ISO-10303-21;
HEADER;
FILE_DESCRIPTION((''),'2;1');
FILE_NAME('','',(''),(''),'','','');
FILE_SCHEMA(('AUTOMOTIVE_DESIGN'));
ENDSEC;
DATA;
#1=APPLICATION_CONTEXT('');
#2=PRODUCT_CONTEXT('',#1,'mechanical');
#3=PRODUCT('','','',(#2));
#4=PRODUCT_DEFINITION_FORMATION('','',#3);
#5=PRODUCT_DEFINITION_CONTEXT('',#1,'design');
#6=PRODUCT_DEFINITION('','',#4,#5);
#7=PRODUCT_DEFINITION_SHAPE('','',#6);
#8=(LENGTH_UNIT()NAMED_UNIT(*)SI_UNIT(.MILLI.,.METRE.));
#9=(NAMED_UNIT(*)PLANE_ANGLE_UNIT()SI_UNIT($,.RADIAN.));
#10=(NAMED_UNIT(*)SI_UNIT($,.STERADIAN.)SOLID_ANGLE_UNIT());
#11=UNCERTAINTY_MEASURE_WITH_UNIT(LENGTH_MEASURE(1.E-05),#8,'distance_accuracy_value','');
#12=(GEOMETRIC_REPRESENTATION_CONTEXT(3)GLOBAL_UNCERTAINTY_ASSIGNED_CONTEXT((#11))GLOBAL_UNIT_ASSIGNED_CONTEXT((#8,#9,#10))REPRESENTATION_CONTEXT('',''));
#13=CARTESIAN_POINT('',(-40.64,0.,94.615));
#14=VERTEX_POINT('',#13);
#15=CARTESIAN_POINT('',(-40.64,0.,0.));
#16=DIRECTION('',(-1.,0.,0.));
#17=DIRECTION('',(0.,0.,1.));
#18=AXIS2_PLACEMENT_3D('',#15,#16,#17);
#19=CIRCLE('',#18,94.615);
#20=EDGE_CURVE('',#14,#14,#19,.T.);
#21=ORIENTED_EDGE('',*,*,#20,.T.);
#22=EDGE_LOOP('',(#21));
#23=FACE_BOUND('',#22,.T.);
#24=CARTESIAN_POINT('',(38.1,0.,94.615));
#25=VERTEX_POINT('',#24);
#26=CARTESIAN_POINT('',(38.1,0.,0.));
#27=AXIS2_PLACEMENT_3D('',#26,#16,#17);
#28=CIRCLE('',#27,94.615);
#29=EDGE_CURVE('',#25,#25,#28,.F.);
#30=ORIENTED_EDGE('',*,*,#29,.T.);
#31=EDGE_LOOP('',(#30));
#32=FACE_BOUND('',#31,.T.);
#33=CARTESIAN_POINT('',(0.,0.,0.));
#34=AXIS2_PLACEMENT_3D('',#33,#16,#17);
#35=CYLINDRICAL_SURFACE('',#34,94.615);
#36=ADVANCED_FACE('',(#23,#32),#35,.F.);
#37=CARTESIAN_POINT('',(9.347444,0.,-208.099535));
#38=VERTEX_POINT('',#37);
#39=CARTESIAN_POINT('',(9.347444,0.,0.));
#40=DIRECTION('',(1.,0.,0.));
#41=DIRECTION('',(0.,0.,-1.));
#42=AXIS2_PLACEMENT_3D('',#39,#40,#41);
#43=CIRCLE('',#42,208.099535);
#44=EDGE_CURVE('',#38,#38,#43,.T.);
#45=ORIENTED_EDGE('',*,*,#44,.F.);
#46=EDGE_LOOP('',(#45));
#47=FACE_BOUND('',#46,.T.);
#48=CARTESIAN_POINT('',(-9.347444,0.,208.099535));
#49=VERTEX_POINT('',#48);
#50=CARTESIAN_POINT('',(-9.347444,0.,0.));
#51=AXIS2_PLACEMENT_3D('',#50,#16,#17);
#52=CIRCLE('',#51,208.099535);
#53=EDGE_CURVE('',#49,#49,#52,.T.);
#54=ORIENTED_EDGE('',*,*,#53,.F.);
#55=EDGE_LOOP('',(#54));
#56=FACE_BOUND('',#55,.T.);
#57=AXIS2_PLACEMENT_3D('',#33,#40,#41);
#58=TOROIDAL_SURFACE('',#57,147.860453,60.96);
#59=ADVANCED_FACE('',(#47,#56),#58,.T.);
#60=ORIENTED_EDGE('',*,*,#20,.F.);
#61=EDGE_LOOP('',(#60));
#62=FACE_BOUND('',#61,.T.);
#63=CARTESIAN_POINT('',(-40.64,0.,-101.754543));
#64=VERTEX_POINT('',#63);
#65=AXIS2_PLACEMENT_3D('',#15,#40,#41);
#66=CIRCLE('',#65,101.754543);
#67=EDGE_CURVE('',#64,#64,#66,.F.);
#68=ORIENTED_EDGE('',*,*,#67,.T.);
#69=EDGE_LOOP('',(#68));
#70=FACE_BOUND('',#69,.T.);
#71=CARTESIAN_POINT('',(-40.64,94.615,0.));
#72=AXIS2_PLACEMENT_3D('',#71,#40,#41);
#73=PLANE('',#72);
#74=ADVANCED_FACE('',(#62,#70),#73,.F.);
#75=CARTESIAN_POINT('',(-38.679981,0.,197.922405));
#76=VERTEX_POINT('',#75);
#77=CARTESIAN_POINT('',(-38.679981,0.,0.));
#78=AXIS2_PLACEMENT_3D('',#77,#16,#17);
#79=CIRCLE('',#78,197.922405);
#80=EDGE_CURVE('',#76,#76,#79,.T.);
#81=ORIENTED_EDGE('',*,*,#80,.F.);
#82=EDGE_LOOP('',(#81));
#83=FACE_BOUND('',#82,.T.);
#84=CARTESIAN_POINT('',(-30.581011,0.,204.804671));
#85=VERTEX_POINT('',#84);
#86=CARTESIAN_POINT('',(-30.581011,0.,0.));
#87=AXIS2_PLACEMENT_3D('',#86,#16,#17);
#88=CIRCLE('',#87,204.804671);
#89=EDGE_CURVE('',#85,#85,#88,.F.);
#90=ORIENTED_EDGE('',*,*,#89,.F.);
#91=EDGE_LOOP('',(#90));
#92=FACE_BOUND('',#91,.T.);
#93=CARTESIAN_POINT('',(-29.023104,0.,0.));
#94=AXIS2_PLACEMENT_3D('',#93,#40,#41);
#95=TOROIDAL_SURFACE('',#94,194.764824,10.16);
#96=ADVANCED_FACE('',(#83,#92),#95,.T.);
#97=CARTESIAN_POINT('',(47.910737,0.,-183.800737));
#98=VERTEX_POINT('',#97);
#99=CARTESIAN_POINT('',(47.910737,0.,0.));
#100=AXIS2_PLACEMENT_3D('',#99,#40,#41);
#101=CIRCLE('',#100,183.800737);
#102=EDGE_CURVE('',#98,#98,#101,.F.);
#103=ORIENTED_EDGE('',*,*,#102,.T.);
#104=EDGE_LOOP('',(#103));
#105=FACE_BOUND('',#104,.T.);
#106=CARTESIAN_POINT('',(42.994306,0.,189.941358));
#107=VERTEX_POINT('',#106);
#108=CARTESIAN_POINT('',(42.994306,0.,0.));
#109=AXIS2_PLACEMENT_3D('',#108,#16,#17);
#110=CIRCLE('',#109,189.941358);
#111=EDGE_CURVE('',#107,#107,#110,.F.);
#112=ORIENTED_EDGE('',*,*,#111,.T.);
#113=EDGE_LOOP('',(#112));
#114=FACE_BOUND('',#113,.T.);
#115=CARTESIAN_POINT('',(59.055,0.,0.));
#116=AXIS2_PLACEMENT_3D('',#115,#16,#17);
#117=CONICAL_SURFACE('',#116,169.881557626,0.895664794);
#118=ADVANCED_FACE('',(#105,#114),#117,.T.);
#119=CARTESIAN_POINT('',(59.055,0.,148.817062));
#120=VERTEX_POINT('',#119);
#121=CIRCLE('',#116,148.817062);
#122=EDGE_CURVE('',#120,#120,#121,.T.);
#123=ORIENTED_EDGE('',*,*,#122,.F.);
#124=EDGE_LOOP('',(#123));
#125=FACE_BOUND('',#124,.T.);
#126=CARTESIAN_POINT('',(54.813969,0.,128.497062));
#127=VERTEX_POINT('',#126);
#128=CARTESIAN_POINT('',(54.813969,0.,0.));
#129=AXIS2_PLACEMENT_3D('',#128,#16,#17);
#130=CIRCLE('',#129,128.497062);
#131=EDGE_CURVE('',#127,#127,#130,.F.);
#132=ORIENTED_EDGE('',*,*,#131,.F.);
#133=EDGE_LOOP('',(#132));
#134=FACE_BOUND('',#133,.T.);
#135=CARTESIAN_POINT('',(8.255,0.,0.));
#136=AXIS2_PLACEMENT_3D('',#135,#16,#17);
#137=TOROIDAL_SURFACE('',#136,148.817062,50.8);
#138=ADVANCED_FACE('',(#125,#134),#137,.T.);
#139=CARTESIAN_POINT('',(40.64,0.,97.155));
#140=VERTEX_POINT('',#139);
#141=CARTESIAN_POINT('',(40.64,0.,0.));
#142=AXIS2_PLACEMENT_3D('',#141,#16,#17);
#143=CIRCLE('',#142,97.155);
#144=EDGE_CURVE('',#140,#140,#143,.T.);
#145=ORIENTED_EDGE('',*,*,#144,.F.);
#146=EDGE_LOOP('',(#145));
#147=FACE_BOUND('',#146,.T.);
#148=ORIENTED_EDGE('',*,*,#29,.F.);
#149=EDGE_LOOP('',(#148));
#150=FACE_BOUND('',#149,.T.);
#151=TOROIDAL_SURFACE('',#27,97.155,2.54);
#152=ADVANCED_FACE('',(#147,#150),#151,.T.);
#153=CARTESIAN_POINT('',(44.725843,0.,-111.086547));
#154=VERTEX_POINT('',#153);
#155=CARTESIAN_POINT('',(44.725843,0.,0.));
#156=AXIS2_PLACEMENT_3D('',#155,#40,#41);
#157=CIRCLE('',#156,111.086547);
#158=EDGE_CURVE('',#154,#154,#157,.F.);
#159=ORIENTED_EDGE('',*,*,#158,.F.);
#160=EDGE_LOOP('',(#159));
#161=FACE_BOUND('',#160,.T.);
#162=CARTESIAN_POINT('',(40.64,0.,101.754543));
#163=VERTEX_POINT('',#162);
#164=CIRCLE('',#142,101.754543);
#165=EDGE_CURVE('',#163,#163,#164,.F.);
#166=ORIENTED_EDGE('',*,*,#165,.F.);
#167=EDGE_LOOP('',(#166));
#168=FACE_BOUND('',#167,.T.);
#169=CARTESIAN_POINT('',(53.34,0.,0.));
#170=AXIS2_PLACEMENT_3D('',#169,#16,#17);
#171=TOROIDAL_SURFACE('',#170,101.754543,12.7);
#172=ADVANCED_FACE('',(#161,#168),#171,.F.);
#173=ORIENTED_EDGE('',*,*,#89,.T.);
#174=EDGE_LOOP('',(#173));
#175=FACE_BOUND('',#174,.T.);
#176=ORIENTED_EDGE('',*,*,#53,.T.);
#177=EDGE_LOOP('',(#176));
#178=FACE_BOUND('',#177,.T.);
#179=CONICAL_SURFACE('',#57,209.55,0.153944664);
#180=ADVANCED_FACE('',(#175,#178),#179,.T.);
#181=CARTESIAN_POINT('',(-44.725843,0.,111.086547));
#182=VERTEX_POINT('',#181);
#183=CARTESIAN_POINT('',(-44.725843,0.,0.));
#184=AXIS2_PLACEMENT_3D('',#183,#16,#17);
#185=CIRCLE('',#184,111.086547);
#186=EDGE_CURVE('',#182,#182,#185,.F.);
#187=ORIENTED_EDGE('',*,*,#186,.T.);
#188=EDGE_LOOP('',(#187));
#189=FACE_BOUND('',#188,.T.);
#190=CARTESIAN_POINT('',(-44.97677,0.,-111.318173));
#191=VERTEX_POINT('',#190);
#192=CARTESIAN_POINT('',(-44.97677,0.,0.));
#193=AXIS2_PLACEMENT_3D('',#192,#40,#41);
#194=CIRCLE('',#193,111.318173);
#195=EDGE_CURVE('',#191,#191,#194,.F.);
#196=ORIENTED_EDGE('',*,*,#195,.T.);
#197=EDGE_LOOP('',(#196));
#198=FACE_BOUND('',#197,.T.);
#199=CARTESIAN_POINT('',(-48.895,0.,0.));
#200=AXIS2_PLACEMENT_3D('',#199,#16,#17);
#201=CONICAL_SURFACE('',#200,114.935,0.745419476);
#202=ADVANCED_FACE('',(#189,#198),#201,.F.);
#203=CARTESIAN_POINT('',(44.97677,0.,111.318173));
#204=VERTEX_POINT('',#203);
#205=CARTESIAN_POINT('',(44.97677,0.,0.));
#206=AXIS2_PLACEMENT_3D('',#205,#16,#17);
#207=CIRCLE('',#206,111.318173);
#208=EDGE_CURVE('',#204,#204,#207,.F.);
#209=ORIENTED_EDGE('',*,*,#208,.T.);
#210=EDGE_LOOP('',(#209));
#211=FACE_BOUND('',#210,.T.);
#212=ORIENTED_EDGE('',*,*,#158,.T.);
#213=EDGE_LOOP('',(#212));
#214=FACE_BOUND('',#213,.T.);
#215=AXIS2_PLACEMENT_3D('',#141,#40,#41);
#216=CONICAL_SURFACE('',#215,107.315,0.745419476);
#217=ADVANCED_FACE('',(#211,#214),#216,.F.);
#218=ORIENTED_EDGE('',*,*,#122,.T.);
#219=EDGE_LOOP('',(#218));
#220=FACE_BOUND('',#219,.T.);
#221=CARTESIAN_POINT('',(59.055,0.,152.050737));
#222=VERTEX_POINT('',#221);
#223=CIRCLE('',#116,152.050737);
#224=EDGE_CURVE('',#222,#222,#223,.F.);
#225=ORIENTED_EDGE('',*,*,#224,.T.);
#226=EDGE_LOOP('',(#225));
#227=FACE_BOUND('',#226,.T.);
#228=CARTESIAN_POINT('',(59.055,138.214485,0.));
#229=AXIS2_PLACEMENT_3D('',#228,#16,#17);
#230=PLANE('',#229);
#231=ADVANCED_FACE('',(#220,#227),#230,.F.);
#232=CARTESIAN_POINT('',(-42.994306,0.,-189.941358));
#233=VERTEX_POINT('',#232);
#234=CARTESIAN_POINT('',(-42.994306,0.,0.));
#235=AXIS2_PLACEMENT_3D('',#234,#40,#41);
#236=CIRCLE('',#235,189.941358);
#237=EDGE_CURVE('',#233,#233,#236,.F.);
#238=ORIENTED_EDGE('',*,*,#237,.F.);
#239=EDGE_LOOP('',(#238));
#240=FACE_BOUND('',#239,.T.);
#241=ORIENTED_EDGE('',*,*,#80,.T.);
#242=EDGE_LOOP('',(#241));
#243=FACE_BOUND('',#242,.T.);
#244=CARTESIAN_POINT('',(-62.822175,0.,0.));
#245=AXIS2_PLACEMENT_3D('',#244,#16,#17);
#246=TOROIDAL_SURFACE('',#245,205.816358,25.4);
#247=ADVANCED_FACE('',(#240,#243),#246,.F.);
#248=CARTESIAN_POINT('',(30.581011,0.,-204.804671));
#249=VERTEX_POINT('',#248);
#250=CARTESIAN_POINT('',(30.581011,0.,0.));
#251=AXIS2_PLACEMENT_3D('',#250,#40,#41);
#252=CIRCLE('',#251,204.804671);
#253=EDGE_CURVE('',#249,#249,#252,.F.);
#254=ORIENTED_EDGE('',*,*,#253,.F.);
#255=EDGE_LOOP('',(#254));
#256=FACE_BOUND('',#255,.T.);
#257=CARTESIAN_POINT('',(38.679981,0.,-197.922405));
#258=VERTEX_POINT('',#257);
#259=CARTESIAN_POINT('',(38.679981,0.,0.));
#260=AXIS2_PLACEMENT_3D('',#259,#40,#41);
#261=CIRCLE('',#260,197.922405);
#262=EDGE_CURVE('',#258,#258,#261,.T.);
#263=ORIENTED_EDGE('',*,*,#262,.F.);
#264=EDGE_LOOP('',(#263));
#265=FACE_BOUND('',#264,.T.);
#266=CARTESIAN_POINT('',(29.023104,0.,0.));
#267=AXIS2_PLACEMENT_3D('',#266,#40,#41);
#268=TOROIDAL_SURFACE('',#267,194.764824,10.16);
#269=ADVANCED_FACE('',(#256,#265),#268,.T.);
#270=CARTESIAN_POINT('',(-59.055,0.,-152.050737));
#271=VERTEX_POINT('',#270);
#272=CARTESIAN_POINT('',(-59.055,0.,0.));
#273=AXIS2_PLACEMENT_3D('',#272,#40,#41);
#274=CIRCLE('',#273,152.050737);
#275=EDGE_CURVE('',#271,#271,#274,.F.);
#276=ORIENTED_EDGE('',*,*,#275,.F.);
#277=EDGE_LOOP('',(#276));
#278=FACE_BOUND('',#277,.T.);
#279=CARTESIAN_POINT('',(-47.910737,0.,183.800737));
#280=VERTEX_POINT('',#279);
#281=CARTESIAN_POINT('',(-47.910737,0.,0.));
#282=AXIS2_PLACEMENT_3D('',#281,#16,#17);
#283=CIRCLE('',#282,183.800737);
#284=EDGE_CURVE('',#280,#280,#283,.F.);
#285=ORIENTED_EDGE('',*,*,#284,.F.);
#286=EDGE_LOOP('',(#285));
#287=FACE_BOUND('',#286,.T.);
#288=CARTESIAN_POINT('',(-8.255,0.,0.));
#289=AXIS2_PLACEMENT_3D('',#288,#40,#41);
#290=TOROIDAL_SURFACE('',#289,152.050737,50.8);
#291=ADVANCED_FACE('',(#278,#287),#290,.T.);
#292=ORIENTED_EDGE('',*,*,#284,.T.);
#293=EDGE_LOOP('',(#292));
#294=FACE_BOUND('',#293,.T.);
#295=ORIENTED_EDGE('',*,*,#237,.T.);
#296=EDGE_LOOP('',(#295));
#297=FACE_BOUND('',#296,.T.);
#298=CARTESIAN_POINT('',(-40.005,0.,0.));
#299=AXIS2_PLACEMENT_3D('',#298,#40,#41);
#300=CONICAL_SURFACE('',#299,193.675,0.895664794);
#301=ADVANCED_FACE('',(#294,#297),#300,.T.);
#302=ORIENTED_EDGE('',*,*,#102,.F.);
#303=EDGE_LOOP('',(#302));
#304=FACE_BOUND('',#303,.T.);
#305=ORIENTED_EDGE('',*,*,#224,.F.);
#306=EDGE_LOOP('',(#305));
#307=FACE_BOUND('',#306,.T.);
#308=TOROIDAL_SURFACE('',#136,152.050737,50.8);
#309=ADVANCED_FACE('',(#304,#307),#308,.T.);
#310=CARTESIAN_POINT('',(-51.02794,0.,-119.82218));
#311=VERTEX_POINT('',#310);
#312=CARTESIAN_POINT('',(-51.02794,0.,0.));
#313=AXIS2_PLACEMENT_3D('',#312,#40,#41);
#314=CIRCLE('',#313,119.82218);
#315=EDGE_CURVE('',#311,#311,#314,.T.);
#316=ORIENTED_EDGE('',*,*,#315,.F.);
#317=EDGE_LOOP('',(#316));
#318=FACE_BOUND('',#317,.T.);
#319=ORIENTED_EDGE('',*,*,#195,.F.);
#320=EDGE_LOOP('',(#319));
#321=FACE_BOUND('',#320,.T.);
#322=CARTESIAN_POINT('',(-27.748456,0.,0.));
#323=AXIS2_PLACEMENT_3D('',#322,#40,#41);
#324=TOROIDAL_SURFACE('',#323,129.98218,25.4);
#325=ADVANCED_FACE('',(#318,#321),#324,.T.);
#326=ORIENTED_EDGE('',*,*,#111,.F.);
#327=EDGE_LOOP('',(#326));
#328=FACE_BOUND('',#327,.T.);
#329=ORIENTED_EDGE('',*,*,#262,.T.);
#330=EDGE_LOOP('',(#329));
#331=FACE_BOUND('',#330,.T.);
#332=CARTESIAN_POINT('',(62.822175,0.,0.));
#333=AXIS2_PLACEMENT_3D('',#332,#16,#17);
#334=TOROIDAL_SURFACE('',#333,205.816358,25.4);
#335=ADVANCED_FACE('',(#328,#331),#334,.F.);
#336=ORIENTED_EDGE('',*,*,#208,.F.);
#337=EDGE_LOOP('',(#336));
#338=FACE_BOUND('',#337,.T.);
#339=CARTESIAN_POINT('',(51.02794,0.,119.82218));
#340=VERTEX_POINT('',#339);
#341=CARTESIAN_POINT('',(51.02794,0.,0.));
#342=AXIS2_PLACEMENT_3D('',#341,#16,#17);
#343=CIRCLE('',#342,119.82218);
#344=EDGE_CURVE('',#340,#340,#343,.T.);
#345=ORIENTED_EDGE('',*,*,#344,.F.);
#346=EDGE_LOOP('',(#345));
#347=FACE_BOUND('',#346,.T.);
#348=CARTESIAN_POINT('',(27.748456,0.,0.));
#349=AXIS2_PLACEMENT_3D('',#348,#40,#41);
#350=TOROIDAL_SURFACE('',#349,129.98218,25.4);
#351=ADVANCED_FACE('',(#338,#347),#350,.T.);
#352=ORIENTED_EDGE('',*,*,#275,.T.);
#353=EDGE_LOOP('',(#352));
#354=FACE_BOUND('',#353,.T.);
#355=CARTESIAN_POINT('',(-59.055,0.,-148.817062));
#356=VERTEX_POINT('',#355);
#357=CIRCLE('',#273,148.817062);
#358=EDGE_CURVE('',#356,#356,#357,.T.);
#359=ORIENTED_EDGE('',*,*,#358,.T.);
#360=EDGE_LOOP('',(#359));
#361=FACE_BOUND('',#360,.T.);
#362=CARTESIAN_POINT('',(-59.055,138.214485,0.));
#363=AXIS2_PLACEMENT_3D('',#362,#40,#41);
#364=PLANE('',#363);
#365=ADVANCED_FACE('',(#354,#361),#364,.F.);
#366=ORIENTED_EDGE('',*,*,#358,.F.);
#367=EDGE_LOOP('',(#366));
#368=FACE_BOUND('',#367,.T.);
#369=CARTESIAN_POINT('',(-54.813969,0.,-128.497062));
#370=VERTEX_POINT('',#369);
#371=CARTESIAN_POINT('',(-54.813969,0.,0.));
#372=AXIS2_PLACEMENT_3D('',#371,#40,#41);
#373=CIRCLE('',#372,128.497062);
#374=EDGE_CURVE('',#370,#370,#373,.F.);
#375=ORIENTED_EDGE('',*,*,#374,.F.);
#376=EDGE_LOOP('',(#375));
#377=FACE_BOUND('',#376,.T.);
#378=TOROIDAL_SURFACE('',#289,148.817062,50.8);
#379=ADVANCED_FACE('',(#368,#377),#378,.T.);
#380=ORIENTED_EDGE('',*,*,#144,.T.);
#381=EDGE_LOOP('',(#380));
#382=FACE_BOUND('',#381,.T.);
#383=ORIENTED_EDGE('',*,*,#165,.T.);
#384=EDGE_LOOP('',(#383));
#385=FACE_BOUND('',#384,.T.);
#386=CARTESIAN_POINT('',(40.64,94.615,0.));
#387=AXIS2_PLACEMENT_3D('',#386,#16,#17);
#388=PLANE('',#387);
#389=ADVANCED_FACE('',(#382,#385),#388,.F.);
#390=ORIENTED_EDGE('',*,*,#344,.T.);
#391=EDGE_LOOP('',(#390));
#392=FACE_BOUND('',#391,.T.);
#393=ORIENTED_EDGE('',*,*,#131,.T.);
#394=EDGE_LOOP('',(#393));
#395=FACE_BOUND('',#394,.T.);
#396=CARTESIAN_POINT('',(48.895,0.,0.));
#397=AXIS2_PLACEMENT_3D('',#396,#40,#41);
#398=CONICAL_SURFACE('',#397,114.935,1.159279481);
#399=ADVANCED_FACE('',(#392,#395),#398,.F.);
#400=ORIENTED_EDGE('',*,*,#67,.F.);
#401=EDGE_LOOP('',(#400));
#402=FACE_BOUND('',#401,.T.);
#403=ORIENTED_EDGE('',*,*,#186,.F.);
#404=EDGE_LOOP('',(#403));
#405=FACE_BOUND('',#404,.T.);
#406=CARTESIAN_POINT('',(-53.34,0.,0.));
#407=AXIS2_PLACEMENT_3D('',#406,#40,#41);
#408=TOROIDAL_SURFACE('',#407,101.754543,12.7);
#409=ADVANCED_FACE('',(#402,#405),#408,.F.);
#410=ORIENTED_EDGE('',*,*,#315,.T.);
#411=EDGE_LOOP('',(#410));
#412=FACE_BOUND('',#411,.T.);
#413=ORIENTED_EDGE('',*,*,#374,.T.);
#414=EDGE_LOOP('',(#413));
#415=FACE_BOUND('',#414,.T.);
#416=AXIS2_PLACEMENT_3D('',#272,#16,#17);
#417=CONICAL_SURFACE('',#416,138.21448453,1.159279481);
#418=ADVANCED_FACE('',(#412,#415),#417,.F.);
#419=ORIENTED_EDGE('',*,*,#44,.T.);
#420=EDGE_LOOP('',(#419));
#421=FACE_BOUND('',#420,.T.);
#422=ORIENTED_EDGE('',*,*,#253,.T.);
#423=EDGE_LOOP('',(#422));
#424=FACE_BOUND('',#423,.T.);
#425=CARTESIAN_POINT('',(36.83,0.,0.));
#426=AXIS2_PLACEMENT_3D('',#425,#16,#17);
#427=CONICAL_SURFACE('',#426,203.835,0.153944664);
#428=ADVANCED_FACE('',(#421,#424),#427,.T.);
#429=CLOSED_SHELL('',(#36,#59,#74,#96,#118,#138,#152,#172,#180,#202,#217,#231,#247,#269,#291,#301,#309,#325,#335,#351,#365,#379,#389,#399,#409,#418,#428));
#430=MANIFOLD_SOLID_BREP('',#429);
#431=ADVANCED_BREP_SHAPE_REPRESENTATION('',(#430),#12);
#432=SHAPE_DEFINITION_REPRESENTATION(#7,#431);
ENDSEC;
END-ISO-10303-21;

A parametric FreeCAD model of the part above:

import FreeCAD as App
import Part
import Sketcher

V = App.Vector
Q = App.Units.Quantity


def edges_at(feature, points):
    """Names of the edges that pass closest to the given points."""
    edges = feature.Shape.Edges
    near = lambda p: min(range(len(edges)), key=lambda i: edges[i].distToShape(Part.Vertex(*p))[0])
    return sorted({f"Edge{near(p) + 1}" for p in points})


def add_polygon(sketch, points):
    """Adds a closed chain of lines whose ends are joined by coincident constraints."""
    first, n = sketch.GeometryCount, len(points)
    for a, b in zip(points, points[1:] + points[:1]):
        sketch.addGeometry(Part.LineSegment(App.Vector(*a, 0), App.Vector(*b, 0)), False)
    for i in range(n):
        sketch.addConstraint(Sketcher.Constraint("Coincident", first + i, 2, first + (i + 1) % n, 1))

doc = App.newDocument("Part")
body = doc.addObject("PartDesign::Body", "Body")

# Sketch on XY plane
sketch1 = doc.addObject("Sketcher::SketchObject", "Sketch")
body.addObject(sketch1)
sketch1.AttachmentSupport = (doc.XY_Plane, [""])
sketch1.MapMode = "FlatFace"
add_polygon(sketch1, [(40.64, 94.615), (40.64, 107.315), (48.895, 114.935), (59.055, 138.214485), (59.055, 169.881558), (40.005, 193.675), (36.83, 203.835), (0, 209.55), (-36.83, 203.835), (-40.005, 193.675), (-59.055, 169.881558), (-59.055, 138.214485), (-48.895, 114.935), (-40.64, 107.315), (-40.64, 94.615)])  # lines 0-14
sketch1.addConstraint([
    Sketcher.Constraint("Vertical", 0),
    Sketcher.Constraint("Vertical", 3),
    Sketcher.Constraint("Vertical", 10),
    Sketcher.Constraint("Vertical", 13),
    Sketcher.Constraint("Horizontal", 14),
    Sketcher.Constraint("Symmetric", 5, 2, 7, 2, -2),
    Sketcher.Constraint("Symmetric", 4, 2, 8, 2, -2),
    Sketcher.Constraint("Symmetric", 3, 2, 9, 2, -2),
    Sketcher.Constraint("Symmetric", 1, 2, 11, 2, -2),
    Sketcher.Constraint("Symmetric", 0, 2, 12, 2, -2),
    Sketcher.Constraint("PointOnObject", 6, 2, -2),
    Sketcher.Constraint("Horizontal", 2, 2, 10, 2),
    Sketcher.Constraint("Distance", 2, Q("1 in")),
    Sketcher.Constraint("DistanceX", 14, 1, 14, 2, Q("3.2 in")),
    Sketcher.Constraint("DistanceY", 0, 1, 0, 2, Q("0.5 in")),
    Sketcher.Constraint("Distance", 4, Q("1.2 in")),
    Sketcher.Constraint("DistanceY", 0, 2, 1, 2, Q("0.3 in")),
    Sketcher.Constraint("DistanceX", 1, 2, 2, 2, Q("0.4 in")),
    Sketcher.Constraint("DistanceY", 1, 2, 4, 2, Q("3.1 in")),
    Sketcher.Constraint("DistanceY", 4, 2, 5, 2, Q("0.4 in")),
    Sketcher.Constraint("DistanceX", 7, 2, 5, 2, Q("2.9 in")),
    Sketcher.Constraint("DistanceX", 8, 2, 3, 2, Q("3.9 in")),
    Sketcher.Constraint("DistanceY", -1, 1, 6, 2, Q("8.25 in")),
    Sketcher.Constraint("DistanceX", 4, 2, 3, 2, Q("0.75 in")),
    Sketcher.Constraint("DistanceY", -1, 1, 0, 2, Q("4.225 in")),
])
revolution = doc.addObject("PartDesign::Revolution", "Revolution")
body.addObject(revolution)
revolution.Profile = sketch1
revolution.ReferenceAxis = (sketch1, ["H_Axis"])
revolution.Angle = 360
doc.recompute()

fillet = doc.addObject("PartDesign::Fillet", "Fillet")
body.addObject(fillet)
fillet.Base = (revolution, edges_at(revolution, [(40.64, 0, -107.315), (-40.64, 0, -107.315)]))
fillet.Radius = Q("0.5 in")
doc.recompute()

fillet2 = doc.addObject("PartDesign::Fillet", "Fillet001")
body.addObject(fillet2)
fillet2.Base = (fillet, edges_at(fillet, [(48.895, 0, -114.935), (-48.895, 0, -114.935)]))
fillet2.Radius = Q("1 in")
doc.recompute()

fillet3 = doc.addObject("PartDesign::Fillet", "Fillet002")
body.addObject(fillet3)
fillet3.Base = (fillet2, edges_at(fillet2, [(59.055, 0, -138.214), (-59.055, 0, -138.214)]))
fillet3.Radius = Q("2 in")
doc.recompute()

fillet4 = doc.addObject("PartDesign::Fillet", "Fillet003")
body.addObject(fillet4)
fillet4.Base = (fillet3, edges_at(fillet3, [(59.055, 0, -169.882), (-59.055, 0, -169.882)]))
fillet4.Radius = Q("2 in")
doc.recompute()

fillet5 = doc.addObject("PartDesign::Fillet", "Fillet004")
body.addObject(fillet5)
fillet5.Base = (fillet4, edges_at(fillet4, [(40.005, 0, -193.675), (-40.005, 0, -193.675)]))
fillet5.Radius = Q("1 in")
doc.recompute()

fillet6 = doc.addObject("PartDesign::Fillet", "Fillet005")
body.addObject(fillet6)
fillet6.Base = (fillet5, edges_at(fillet5, [(36.83, 0, -203.835), (-36.83, 0, -203.835)]))
fillet6.Radius = Q("0.4 in")
doc.recompute()

fillet7 = doc.addObject("PartDesign::Fillet", "Fillet006")
body.addObject(fillet7)
fillet7.Base = (fillet6, edges_at(fillet6, [(0, 0, -209.55)]))
fillet7.Radius = Q("2.4 in")
doc.recompute()

fillet8 = doc.addObject("PartDesign::Fillet", "Fillet007")
body.addObject(fillet8)
fillet8.Base = (fillet7, edges_at(fillet7, [(40.64, 0, -94.615)]))
fillet8.Radius = Q("0.1 in")

doc.recompute()
